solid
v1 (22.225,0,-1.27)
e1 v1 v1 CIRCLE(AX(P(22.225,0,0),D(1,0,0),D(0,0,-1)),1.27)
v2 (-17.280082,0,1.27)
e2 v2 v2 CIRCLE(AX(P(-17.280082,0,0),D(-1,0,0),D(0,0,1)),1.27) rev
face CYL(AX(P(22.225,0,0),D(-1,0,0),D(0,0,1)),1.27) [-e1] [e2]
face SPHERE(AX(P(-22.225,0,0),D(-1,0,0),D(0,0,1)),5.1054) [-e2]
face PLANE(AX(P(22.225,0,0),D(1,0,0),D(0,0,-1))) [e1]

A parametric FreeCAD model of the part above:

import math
import FreeCAD as App
import Part
import Sketcher
from FreeCAD import Vector
Q = App.Units.Quantity

doc = App.newDocument("Part")
body = doc.addObject("PartDesign::Body", "Body")

sketch1 = body.newObject("Sketcher::SketchObject", "Sketch")
sketch1.AttachmentSupport = (doc.getObject("YZ_Plane"), [""])
sketch1.MapMode = "FlatFace"
sketch1.addGeometry(Part.Circle(Vector(0, 0, 0), Vector(0, 0, 1), 1.3), False)
sketch1.addConstraint([
    Sketcher.Constraint("Coincident", 0, 3, -1, 1),
    Sketcher.Constraint("Diameter", 0, Q("0.1 in")),
])
pad1 = body.newObject("PartDesign::Pad", "Pad")
pad1.Profile = sketch1
pad1.Length = Q("1.75 in")
pad1.Midplane = True

sketch2 = body.newObject("Sketcher::SketchObject", "Sketch001")
sketch2.AttachmentSupport = (doc.getObject("YZ_Plane"), [""])
sketch2.MapMode = "FlatFace"
sketch2.AttachmentOffset = App.Placement(Vector(0, 0, -0.875 * 25.4), App.Rotation())
sketch2.addGeometry([
    Part.LineSegment(Vector(-5, 0, 0), Vector(5, 0, 0)),
    Part.ArcOfCircle(Part.Circle(Vector(0, 0, 0), Vector(0, 0, 1), 5), math.radians(180), math.radians(360)),
], False)
sketch2.addConstraint([
    Sketcher.Constraint("Coincident", 0, 1, 1, 1),
    Sketcher.Constraint("Coincident", 1, 2, 0, 2),
    Sketcher.Constraint("Horizontal", 0),
    Sketcher.Constraint("Coincident", 1, 3, -1, 1),
    Sketcher.Constraint("PointOnObject", 0, 1, -1),
    Sketcher.Constraint("Radius", 1, Q("0.201 in")),
])
revolution = body.newObject("PartDesign::Revolution", "Revolution")
revolution.Profile = sketch2
revolution.ReferenceAxis = (sketch2, ["H_Axis"])
revolution.Angle = 360

doc.recompute()
